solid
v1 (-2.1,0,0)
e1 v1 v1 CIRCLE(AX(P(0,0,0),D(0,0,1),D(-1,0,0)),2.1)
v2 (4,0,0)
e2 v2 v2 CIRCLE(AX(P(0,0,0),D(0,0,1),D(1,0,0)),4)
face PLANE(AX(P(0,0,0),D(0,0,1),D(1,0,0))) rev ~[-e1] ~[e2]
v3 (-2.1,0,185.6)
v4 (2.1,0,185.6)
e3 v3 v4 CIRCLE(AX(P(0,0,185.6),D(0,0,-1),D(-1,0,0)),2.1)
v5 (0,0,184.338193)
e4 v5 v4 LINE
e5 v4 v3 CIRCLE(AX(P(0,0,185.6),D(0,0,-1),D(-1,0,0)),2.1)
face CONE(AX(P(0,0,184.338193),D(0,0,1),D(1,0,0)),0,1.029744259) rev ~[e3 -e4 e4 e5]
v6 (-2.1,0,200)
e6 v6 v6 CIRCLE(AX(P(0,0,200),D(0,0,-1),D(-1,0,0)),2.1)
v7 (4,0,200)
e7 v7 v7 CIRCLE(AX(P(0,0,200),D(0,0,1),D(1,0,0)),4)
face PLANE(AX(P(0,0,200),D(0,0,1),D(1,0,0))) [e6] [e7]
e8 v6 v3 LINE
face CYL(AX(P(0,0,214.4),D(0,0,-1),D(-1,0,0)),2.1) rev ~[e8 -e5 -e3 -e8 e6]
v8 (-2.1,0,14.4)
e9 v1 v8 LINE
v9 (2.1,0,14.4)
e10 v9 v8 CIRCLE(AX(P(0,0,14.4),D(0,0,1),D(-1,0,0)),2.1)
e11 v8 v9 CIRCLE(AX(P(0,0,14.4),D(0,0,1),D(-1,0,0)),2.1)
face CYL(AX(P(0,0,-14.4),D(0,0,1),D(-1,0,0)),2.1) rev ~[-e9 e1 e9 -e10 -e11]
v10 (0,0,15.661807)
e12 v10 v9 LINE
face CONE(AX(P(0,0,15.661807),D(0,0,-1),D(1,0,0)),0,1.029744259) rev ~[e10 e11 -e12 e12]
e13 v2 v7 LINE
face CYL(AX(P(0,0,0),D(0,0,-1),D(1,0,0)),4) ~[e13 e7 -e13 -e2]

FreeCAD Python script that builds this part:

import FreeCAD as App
import Part
import Sketcher

V = App.Vector

doc = App.newDocument("Part")
body = doc.addObject("PartDesign::Body", "Body")

sketch1 = doc.addObject("Sketcher::SketchObject", "Sketch")
body.addObject(sketch1)
sketch1.AttachmentSupport = (doc.XY_Plane, [""])
sketch1.MapMode = "FlatFace"
sketch1.addGeometry(Part.Circle(V(0, 0, 0), V(0, 0, 1), 4), False)
sketch1.addConstraint(Sketcher.Constraint("Coincident", 0, 3, -1, 1))
sketch1.addConstraint(Sketcher.Constraint("Diameter", 0, 8.0))
pad1 = doc.addObject("PartDesign::Pad", "Pad")
body.addObject(pad1)
pad1.Profile = sketch1
pad1.Length = 200

sketch2 = doc.addObject("Sketcher::SketchObject", "Sketch001")
body.addObject(sketch2)
sketch2.AttachmentSupport = (doc.XY_Plane, [""])
sketch2.MapMode = "FlatFace"
sketch2.AttachmentOffset = App.Placement(V(0, 0, 200), App.Rotation())
sketch2.addGeometry(Part.Circle(V(0, 0, 0), V(0, 0, 1), 2.1), False)
sketch2.addConstraint(Sketcher.Constraint("Coincident", 0, 3, -1, 1))
sketch2.addConstraint(Sketcher.Constraint("Diameter", 0, 4.2))
doc.recompute()
hole = doc.addObject("PartDesign::Hole", "Hole")
body.addObject(hole)
hole.Profile = sketch2
hole.ThreadType = "None"
hole.Diameter = 4.2
hole.DepthType = "Dimension"
hole.Depth = 14.4
hole.DrillPoint = "Angled"
hole.DrillPointAngle = 118

sketch3 = doc.addObject("Sketcher::SketchObject", "Sketch002")
body.addObject(sketch3)
sketch3.AttachmentSupport = (doc.XY_Plane, [""])
sketch3.MapMode = "FlatFace"
sketch3.addGeometry(Part.Circle(V(0, 0, 0), V(0, 0, 1), 2.1), False)
sketch3.addConstraint(Sketcher.Constraint("Coincident", 0, 3, -1, 1))
sketch3.addConstraint(Sketcher.Constraint("Diameter", 0, 4.2))
doc.recompute()
hole2 = doc.addObject("PartDesign::Hole", "Hole001")
body.addObject(hole2)
hole2.Profile = sketch3
hole2.ThreadType = "None"
hole2.Diameter = 4.2
hole2.DepthType = "Dimension"
hole2.Depth = 14.4
hole2.DrillPoint = "Angled"
hole2.DrillPointAngle = 118
hole2.Reversed = True

doc.recompute()
